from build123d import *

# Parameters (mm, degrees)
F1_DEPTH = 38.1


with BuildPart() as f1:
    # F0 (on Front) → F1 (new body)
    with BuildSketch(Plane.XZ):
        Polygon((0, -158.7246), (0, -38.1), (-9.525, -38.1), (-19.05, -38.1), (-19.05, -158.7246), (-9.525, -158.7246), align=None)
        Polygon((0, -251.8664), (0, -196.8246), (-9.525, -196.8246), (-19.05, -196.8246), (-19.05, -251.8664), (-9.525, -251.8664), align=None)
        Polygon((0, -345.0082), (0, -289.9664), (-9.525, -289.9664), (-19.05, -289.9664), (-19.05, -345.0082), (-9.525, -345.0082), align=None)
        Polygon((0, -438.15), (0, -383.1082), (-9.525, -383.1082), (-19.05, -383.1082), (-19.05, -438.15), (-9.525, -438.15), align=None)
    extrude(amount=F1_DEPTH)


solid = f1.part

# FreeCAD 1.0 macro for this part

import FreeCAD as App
import Part
import Sketcher

V = App.Vector
Q = App.Units.Quantity


def add_polygon(sketch, points):
    """Adds a closed chain of lines whose ends are joined by coincident constraints."""
    first, n = sketch.GeometryCount, len(points)
    for a, b in zip(points, points[1:] + points[:1]):
        sketch.addGeometry(Part.LineSegment(App.Vector(*a, 0), App.Vector(*b, 0)), False)
    for i in range(n):
        sketch.addConstraint(Sketcher.Constraint("Coincident", first + i, 2, first + (i + 1) % n, 1))

doc = App.newDocument("Part")
body = doc.addObject("PartDesign::Body", "Body")
body.AllowCompound = True

sketch1 = doc.addObject("Sketcher::SketchObject", "Sketch")
body.addObject(sketch1)
sketch1.AttachmentSupport = (doc.XZ_Plane, [""])
sketch1.MapMode = "FlatFace"
add_polygon(sketch1, [(0, -158.7246), (0, -38.1), (-19.05, -38.1), (-19.05, -158.7246)])
add_polygon(sketch1, [(0, -251.8664), (0, -196.8246), (-19.05, -196.8246), (-19.05, -251.8664)])
add_polygon(sketch1, [(0, -345.0082), (0, -289.9664), (-19.05, -289.9664), (-19.05, -345.0082)])
add_polygon(sketch1, [(0, -438.15), (0, -383.1082), (-19.05, -383.1082), (-19.05, -438.15)])
sketch1.addConstraint(Sketcher.Constraint("Vertical", 0))
sketch1.addConstraint(Sketcher.Constraint("Horizontal", 1))
sketch1.addConstraint(Sketcher.Constraint("Vertical", 2))
sketch1.addConstraint(Sketcher.Constraint("Horizontal", 3))
sketch1.addConstraint(Sketcher.Constraint("Vertical", 4))
sketch1.addConstraint(Sketcher.Constraint("Horizontal", 5))
sketch1.addConstraint(Sketcher.Constraint("Vertical", 6))
sketch1.addConstraint(Sketcher.Constraint("Horizontal", 7))
sketch1.addConstraint(Sketcher.Constraint("Vertical", 8))
sketch1.addConstraint(Sketcher.Constraint("Horizontal", 9))
sketch1.addConstraint(Sketcher.Constraint("Vertical", 10))
sketch1.addConstraint(Sketcher.Constraint("Horizontal", 11))
sketch1.addConstraint(Sketcher.Constraint("Vertical", 12))
sketch1.addConstraint(Sketcher.Constraint("Horizontal", 13))
sketch1.addConstraint(Sketcher.Constraint("Vertical", 14))
sketch1.addConstraint(Sketcher.Constraint("Horizontal", 15))
sketch1.addConstraint(Sketcher.Constraint("PointOnObject", 0, 2, -2))
sketch1.addConstraint(Sketcher.Constraint("PointOnObject", 4, 2, -2))
sketch1.addConstraint(Sketcher.Constraint("PointOnObject", 8, 2, -2))
sketch1.addConstraint(Sketcher.Constraint("PointOnObject", 12, 2, -2))
sketch1.addConstraint(Sketcher.Constraint("Vertical", 2, 2, 5, 2))
sketch1.addConstraint(Sketcher.Constraint("Vertical", 6, 2, 9, 2))
sketch1.addConstraint(Sketcher.Constraint("Vertical", 10, 2, 13, 2))
sketch1.addConstraint(Sketcher.Constraint("Equal", 6, 8))
sketch1.addConstraint(Sketcher.Constraint("Equal", 10, 12))
sketch1.addConstraint(Sketcher.Constraint("DistanceX", 1, 2, 1, 1, Q("0.75 in")))
sketch1.addConstraint(Sketcher.Constraint("DistanceY", 0, 2, -1, 1, Q("1.5 in")))
sketch1.addConstraint(Sketcher.Constraint("DistanceY", 4, 2, 3, 2, Q("1.5 in")))
sketch1.addConstraint(Sketcher.Constraint("DistanceY", 8, 2, 7, 2, Q("1.5 in")))
sketch1.addConstraint(Sketcher.Constraint("DistanceY", 12, 2, 11, 2, Q("1.5 in")))
sketch1.addConstraint(Sketcher.Constraint("DistanceY", 0, 1, 0, 2, Q("4.749 in")))
sketch1.addConstraint(Sketcher.Constraint("DistanceY", 4, 1, 4, 2, Q("2.167 in")))
pad1 = doc.addObject("PartDesign::Pad", "Pad")
body.addObject(pad1)
pad1.Profile = sketch1
pad1.Length = Q("1.5 in")

doc.recompute()
